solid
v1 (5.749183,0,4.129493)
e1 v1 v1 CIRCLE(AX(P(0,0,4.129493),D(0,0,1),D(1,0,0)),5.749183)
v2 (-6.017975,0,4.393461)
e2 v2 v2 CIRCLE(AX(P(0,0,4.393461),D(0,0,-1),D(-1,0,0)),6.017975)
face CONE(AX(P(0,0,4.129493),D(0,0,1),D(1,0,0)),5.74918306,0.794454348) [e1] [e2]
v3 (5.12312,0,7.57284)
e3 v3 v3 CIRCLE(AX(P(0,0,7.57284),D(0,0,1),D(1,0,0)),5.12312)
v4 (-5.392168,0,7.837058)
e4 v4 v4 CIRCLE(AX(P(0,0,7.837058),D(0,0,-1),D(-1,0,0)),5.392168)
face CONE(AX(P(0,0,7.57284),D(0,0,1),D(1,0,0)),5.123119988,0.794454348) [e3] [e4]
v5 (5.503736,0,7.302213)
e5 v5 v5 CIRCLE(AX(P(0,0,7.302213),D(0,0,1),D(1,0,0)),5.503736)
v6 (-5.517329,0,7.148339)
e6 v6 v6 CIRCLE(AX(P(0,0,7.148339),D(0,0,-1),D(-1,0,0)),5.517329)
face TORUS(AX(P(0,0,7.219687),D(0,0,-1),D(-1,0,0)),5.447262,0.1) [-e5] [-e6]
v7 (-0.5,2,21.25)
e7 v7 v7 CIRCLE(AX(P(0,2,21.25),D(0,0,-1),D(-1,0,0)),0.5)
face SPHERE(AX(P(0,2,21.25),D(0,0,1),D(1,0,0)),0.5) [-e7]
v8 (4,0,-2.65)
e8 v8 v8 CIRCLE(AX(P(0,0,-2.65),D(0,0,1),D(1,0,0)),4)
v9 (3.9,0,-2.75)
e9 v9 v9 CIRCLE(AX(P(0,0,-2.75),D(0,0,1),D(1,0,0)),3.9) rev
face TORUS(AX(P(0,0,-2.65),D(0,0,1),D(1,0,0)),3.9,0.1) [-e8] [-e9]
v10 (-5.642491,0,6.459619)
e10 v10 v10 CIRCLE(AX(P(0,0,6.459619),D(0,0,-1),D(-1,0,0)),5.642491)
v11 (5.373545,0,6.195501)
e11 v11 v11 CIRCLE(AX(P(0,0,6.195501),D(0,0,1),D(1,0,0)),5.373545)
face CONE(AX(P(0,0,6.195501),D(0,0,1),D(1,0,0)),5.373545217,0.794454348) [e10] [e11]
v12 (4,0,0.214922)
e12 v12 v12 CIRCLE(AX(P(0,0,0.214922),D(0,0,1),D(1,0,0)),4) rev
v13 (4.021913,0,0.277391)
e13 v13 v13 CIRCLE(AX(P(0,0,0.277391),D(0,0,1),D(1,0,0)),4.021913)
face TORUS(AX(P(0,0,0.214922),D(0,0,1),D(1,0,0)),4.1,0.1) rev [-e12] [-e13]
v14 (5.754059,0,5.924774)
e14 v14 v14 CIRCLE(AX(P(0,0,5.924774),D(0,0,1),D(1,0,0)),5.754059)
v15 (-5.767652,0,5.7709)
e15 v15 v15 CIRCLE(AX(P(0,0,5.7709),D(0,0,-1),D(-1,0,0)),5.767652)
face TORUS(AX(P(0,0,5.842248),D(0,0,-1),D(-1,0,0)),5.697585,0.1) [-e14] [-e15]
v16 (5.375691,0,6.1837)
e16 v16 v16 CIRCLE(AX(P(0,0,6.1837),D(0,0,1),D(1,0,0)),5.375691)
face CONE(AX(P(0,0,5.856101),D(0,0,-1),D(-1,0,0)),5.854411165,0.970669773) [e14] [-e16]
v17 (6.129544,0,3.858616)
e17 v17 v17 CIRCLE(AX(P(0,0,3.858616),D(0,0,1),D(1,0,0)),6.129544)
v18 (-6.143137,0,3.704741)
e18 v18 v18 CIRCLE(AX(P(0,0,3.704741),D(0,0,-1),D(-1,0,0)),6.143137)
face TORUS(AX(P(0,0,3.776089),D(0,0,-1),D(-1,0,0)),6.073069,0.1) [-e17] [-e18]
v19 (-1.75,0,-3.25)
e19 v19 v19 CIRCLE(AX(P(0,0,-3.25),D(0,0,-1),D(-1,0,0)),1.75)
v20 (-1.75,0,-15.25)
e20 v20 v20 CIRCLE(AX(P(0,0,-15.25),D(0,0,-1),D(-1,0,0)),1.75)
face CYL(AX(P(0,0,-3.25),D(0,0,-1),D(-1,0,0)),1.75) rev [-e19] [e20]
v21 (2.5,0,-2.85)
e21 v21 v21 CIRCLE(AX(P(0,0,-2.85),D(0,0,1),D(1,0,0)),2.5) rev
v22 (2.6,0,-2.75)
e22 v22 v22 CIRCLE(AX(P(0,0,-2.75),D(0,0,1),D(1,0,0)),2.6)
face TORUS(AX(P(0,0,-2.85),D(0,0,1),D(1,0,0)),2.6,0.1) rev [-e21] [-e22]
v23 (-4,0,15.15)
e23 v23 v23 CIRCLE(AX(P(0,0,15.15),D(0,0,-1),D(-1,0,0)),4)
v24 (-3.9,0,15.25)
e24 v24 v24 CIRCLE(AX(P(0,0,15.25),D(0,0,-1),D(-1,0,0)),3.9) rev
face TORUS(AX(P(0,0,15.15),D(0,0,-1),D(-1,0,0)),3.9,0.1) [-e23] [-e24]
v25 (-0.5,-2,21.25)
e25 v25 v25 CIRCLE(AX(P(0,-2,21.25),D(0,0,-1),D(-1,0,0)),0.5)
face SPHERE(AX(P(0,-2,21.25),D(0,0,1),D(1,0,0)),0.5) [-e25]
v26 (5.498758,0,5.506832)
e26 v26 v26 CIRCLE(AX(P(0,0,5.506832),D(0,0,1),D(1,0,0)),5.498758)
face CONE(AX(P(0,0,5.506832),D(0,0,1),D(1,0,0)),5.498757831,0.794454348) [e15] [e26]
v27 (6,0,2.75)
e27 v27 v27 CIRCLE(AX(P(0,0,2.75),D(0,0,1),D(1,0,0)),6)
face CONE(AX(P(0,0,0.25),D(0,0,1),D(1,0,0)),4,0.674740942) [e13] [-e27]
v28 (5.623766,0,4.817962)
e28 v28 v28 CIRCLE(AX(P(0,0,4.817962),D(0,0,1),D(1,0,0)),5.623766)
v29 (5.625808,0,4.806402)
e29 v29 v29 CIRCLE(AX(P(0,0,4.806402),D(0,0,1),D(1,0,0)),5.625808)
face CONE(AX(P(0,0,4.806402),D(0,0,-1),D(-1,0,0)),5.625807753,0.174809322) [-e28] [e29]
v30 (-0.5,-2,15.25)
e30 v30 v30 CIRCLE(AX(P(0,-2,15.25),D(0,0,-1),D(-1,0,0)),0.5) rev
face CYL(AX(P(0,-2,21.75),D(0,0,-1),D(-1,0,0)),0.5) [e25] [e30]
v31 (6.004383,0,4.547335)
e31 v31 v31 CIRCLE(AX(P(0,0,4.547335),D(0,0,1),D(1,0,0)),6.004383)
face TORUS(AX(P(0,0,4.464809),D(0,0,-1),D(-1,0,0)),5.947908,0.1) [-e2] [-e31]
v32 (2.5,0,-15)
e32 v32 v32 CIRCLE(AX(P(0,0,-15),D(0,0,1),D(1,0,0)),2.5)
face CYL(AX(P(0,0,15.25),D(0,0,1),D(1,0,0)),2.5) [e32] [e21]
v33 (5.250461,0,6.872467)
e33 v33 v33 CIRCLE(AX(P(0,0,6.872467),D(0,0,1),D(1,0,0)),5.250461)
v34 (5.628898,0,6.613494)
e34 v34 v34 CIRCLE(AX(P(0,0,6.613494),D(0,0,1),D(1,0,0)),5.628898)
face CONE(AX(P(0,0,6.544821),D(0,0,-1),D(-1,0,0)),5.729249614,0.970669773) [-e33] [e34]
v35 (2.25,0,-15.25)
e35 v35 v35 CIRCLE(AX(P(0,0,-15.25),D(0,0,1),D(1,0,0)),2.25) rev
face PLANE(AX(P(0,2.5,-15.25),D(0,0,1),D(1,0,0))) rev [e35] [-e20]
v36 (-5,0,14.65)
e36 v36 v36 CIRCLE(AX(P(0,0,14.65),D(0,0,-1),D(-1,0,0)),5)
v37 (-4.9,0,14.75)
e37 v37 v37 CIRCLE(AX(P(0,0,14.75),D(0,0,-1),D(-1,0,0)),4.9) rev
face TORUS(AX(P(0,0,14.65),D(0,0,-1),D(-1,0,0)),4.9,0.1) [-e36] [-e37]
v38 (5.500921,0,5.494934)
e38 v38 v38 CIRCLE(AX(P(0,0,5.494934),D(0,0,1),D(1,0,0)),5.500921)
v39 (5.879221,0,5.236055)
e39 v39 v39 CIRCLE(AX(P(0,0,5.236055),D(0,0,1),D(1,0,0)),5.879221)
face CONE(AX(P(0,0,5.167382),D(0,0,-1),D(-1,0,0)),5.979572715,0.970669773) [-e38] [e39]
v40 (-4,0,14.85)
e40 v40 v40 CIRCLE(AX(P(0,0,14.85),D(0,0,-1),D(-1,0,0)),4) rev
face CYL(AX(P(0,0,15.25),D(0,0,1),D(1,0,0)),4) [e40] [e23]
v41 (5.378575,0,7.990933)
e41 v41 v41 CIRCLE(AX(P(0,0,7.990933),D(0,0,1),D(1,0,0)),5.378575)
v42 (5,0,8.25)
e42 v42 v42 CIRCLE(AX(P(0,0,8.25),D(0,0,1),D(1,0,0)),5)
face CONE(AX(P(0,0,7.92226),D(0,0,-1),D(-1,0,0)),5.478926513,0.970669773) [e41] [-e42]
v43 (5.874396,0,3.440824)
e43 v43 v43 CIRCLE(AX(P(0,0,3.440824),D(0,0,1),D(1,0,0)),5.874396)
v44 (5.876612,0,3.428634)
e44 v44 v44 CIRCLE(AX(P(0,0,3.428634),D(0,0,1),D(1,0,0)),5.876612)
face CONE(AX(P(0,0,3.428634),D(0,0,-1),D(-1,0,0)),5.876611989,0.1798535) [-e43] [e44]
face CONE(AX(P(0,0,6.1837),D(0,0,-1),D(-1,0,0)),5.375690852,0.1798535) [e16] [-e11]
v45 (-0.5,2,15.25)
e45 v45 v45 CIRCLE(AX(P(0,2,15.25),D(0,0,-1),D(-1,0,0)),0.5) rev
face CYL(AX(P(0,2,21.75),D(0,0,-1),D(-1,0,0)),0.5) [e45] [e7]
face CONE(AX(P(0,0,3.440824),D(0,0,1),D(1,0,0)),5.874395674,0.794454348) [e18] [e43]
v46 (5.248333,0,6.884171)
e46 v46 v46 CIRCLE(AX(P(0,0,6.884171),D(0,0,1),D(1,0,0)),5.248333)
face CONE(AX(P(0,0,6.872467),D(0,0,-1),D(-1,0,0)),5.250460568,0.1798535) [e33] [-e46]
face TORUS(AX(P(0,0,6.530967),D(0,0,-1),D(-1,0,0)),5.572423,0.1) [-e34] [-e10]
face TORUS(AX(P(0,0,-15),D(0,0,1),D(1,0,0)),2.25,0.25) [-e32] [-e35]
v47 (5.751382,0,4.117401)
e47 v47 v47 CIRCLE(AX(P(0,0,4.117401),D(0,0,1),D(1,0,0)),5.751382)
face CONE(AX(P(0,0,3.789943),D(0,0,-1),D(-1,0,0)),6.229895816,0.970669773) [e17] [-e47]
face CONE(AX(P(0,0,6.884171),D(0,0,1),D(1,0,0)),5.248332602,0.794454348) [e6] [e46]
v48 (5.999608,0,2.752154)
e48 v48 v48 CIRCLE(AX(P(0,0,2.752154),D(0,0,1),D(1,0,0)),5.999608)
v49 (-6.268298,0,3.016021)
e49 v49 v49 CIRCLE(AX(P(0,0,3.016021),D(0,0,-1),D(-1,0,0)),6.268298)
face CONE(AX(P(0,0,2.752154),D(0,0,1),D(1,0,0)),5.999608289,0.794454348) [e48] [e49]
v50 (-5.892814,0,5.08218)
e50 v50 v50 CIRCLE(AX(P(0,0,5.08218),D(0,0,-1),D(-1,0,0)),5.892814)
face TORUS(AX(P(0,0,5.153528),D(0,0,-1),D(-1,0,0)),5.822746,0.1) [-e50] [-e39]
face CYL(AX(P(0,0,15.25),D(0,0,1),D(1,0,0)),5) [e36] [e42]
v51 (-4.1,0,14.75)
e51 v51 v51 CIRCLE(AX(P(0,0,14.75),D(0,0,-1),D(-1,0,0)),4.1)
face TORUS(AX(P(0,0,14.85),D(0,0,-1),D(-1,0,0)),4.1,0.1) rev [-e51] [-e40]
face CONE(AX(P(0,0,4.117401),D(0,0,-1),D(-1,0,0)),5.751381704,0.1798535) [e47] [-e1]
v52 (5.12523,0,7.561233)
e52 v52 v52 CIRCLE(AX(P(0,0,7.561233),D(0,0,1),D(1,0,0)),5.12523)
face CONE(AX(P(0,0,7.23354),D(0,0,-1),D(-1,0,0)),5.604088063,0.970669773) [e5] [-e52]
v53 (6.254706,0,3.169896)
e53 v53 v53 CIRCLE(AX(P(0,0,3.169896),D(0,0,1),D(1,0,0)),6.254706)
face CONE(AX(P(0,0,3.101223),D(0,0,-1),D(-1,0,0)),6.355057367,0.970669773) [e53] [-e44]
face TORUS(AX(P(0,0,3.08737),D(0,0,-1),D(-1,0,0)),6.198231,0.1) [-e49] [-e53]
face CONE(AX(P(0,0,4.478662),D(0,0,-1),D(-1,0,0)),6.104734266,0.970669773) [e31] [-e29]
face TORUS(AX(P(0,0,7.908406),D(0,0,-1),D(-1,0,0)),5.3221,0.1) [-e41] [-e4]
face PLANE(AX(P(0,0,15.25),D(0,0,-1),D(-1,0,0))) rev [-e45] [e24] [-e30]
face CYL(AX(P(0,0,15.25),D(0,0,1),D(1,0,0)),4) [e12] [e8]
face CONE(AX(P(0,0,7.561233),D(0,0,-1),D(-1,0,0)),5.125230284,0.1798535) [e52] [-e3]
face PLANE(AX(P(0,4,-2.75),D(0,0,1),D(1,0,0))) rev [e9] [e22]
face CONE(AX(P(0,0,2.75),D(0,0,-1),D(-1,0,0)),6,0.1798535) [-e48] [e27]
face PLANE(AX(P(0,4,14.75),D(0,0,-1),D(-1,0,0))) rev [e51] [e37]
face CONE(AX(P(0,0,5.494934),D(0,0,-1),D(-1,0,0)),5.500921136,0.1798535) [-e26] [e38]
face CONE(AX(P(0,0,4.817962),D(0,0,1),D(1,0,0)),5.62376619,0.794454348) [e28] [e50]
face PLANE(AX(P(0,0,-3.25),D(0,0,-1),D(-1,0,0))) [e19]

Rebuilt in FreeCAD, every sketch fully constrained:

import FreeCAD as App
import Part
import Sketcher

V = App.Vector


def edges_at(feature, points):
    """Names of the edges that pass closest to the given points."""
    edges = feature.Shape.Edges
    near = lambda p: min(range(len(edges)), key=lambda i: edges[i].distToShape(Part.Vertex(*p))[0])
    return sorted({f"Edge{near(p) + 1}" for p in points})

doc = App.newDocument("Part")
body = doc.addObject("PartDesign::Body", "Body")

sketch1 = doc.addObject("Sketcher::SketchObject", "Sketch")
body.addObject(sketch1)
sketch1.AttachmentSupport = (doc.YZ_Plane, [""])
sketch1.MapMode = "FlatFace"
sketch1.addGeometry([
    Part.LineSegment(V(0, 15.25, 0), V(0, -15.25, 0)),
    Part.LineSegment(V(0, -15.25, 0), V(2.5, -15.25, 0)),
    Part.LineSegment(V(2.5, -15.25, 0), V(2.5, -2.75, 0)),
    Part.LineSegment(V(2.5, -2.75, 0), V(4, -2.75, 0)),
    Part.LineSegment(V(4, -2.75, 0), V(4, 0.25, 0)),
    Part.LineSegment(V(4, 0.25, 0), V(6, 2.75, 0)),
    Part.LineSegment(V(6, 2.75, 0), V(5.9996, 2.7522, 0)),
    Part.LineSegment(V(5.9996, 2.7522, 0), V(6.3551, 3.1012, 0)),
    Part.LineSegment(V(6.3551, 3.1012, 0), V(5.8766, 3.4286, 0)),
    Part.LineSegment(V(5.8766, 3.4286, 0), V(5.8744, 3.4408, 0)),
    Part.LineSegment(V(5.8744, 3.4408, 0), V(6.2299, 3.7899, 0)),
    Part.LineSegment(V(6.2299, 3.7899, 0), V(5.7514, 4.1174, 0)),
    Part.LineSegment(V(5.7514, 4.1174, 0), V(5.7492, 4.1295, 0)),
    Part.LineSegment(V(5.7492, 4.1295, 0), V(6.1047, 4.4787, 0)),
    Part.LineSegment(V(6.1047, 4.4787, 0), V(5.6258, 4.8064, 0)),
    Part.LineSegment(V(5.6258, 4.8064, 0), V(5.6238, 4.818, 0)),
    Part.LineSegment(V(5.6238, 4.818, 0), V(5.9796, 5.1674, 0)),
    Part.LineSegment(V(5.9796, 5.1674, 0), V(5.5009, 5.4949, 0)),
    Part.LineSegment(V(5.5009, 5.4949, 0), V(5.4988, 5.5068, 0)),
    Part.LineSegment(V(5.4988, 5.5068, 0), V(5.8544, 5.8561, 0)),
    Part.LineSegment(V(5.8544, 5.8561, 0), V(5.3757, 6.1837, 0)),
    Part.LineSegment(V(5.3757, 6.1837, 0), V(5.3735, 6.1955, 0)),
    Part.LineSegment(V(5.3735, 6.1955, 0), V(5.7292, 6.5448, 0)),
    Part.LineSegment(V(5.7292, 6.5448, 0), V(5.2505, 6.8725, 0)),
    Part.LineSegment(V(5.2505, 6.8725, 0), V(5.2483, 6.8842, 0)),
    Part.LineSegment(V(5.2483, 6.8842, 0), V(5.6041, 7.2335, 0)),
    Part.LineSegment(V(5.6041, 7.2335, 0), V(5.1252, 7.5612, 0)),
    Part.LineSegment(V(5.1252, 7.5612, 0), V(5.1231, 7.5728, 0)),
    Part.LineSegment(V(5.1231, 7.5728, 0), V(5.4789, 7.9223, 0)),
    Part.LineSegment(V(5.4789, 7.9223, 0), V(5, 8.25, 0)),
    Part.LineSegment(V(5, 8.25, 0), V(5, 14.75, 0)),
    Part.LineSegment(V(5, 14.75, 0), V(4, 14.75, 0)),
    Part.LineSegment(V(4, 14.75, 0), V(4, 15.25, 0)),
    Part.LineSegment(V(4, 15.25, 0), V(0, 15.25, 0)),
], False)
sketch1.addConstraint([
    Sketcher.Constraint("Coincident", 0, 2, 1, 1),
    Sketcher.Constraint("Coincident", 1, 2, 2, 1),
    Sketcher.Constraint("Coincident", 2, 2, 3, 1),
    Sketcher.Constraint("Coincident", 3, 2, 4, 1),
    Sketcher.Constraint("Coincident", 4, 2, 5, 1),
    Sketcher.Constraint("Coincident", 5, 2, 6, 1),
    Sketcher.Constraint("Coincident", 6, 2, 7, 1),
    Sketcher.Constraint("Coincident", 7, 2, 8, 1),
    Sketcher.Constraint("Coincident", 8, 2, 9, 1),
    Sketcher.Constraint("Coincident", 9, 2, 10, 1),
    Sketcher.Constraint("Coincident", 10, 2, 11, 1),
    Sketcher.Constraint("Coincident", 11, 2, 12, 1),
    Sketcher.Constraint("Coincident", 12, 2, 13, 1),
    Sketcher.Constraint("Coincident", 13, 2, 14, 1),
    Sketcher.Constraint("Coincident", 14, 2, 15, 1),
    Sketcher.Constraint("Coincident", 15, 2, 16, 1),
    Sketcher.Constraint("Coincident", 16, 2, 17, 1),
    Sketcher.Constraint("Coincident", 17, 2, 18, 1),
    Sketcher.Constraint("Coincident", 18, 2, 19, 1),
    Sketcher.Constraint("Coincident", 19, 2, 20, 1),
    Sketcher.Constraint("Coincident", 20, 2, 21, 1),
    Sketcher.Constraint("Coincident", 21, 2, 22, 1),
    Sketcher.Constraint("Coincident", 22, 2, 23, 1),
    Sketcher.Constraint("Coincident", 23, 2, 24, 1),
    Sketcher.Constraint("Coincident", 24, 2, 25, 1),
    Sketcher.Constraint("Coincident", 25, 2, 26, 1),
    Sketcher.Constraint("Coincident", 26, 2, 27, 1),
    Sketcher.Constraint("Coincident", 27, 2, 28, 1),
    Sketcher.Constraint("Coincident", 28, 2, 29, 1),
    Sketcher.Constraint("Coincident", 29, 2, 30, 1),
    Sketcher.Constraint("Coincident", 30, 2, 31, 1),
    Sketcher.Constraint("Coincident", 31, 2, 32, 1),
    Sketcher.Constraint("Coincident", 32, 2, 33, 1),
    Sketcher.Constraint("Coincident", 33, 2, 0, 1),
    Sketcher.Constraint("Vertical", 0),
    Sketcher.Constraint("Horizontal", 1),
    Sketcher.Constraint("Vertical", 2),
    Sketcher.Constraint("Horizontal", 3),
    Sketcher.Constraint("Vertical", 4),
    Sketcher.Constraint("Vertical", 30),
    Sketcher.Constraint("Horizontal", 31),
    Sketcher.Constraint("Vertical", 32),
    Sketcher.Constraint("Horizontal", 33),
    Sketcher.Constraint("Symmetric", 0, 2, 33, 2, -1, 1),
    Sketcher.Constraint("Parallel", 6, 9),
    Sketcher.Constraint("Parallel", 7, 10),
    Sketcher.Constraint("Parallel", 8, 11),
    Sketcher.Constraint("Parallel", 9, 12),
    Sketcher.Constraint("Parallel", 10, 13),
    Sketcher.Constraint("Parallel", 11, 14),
    Sketcher.Constraint("Parallel", 13, 16),
    Sketcher.Constraint("Parallel", 14, 17),
    Sketcher.Constraint("Parallel", 12, 18),
    Sketcher.Constraint("Parallel", 16, 19),
    Sketcher.Constraint("Parallel", 17, 20),
    Sketcher.Constraint("Parallel", 18, 21),
    Sketcher.Constraint("Parallel", 19, 22),
    Sketcher.Constraint("Parallel", 20, 23),
    Sketcher.Constraint("Parallel", 21, 24),
    Sketcher.Constraint("Parallel", 22, 25),
    Sketcher.Constraint("Parallel", 23, 26),
    Sketcher.Constraint("Parallel", 24, 27),
    Sketcher.Constraint("Parallel", 25, 28),
    Sketcher.Constraint("Parallel", 26, 29),
    Sketcher.Constraint("Vertical", 4, 2, 31, 2),
    Sketcher.Constraint("Equal", 16, 28),
    Sketcher.Constraint("Equal", 14, 29),
    Sketcher.Constraint("DistanceX", 31, 2, 31, 1, 1.0),
    Sketcher.Constraint("DistanceX", 33, 2, 33, 1, 4.0),
    Sketcher.Constraint("DistanceY", 4, 1, 4, 2, 3.0),
    Sketcher.Constraint("DistanceX", 1, 1, 1, 2, 2.5),
    Sketcher.Constraint("DistanceY", 0, 2, 0, 1, 30.5),
    Sketcher.Constraint("DistanceY", 2, 1, 2, 2, 12.5),
    Sketcher.Constraint("DistanceY", 30, 1, 30, 2, 6.5),
    Sketcher.Constraint("DistanceY", 32, 1, 32, 2, 0.5),
    Sketcher.Constraint("DistanceX", -1, 1, 5, 2, 6.0),
    Sketcher.Constraint("DistanceY", 1, 2, 5, 2, 18.0),
    Sketcher.Constraint("Distance", 17, 0.579998),
    Sketcher.Constraint("DistanceY", 11, 2, 14, 2, 0.689002),
    Sketcher.Constraint("DistanceY", -1, 1, 11, 2, 4.117401),
    Sketcher.Constraint("DistanceY", -1, 1, 19, 2, 5.856101),
    Sketcher.Constraint("DistanceY", -1, 1, 20, 2, 6.1837),
    Sketcher.Constraint("DistanceY", -1, 1, 21, 2, 6.195501),
    Sketcher.Constraint("DistanceY", 7, 2, 9, 2, 0.339601),
    Sketcher.Constraint("DistanceX", 9, 2, 10, 2, 0.3555),
    Sketcher.Constraint("DistanceX", 12, 2, 11, 2, 0.002199),
    Sketcher.Constraint("DistanceY", 13, 2, 15, 2, 0.3393),
    Sketcher.Constraint("DistanceY", 17, 2, 18, 2, 0.011898),
    Sketcher.Constraint("DistanceY", 25, 2, 27, 2, 0.3393),
    Sketcher.Constraint("Distance", 6, 0.00219),
    Sketcher.Constraint("Distance", 7, 0.49819),
    Sketcher.Constraint("Distance", 8, 0.579748),
    Sketcher.Constraint("Distance", 9, 0.01239),
    Sketcher.Constraint("Distance", 10, 0.498261),
    Sketcher.Constraint("Distance", 11, 0.579831),
    Sketcher.Constraint("Distance", 14, 0.580331),
    Sketcher.Constraint("Distance", 15, 0.011738),
    Sketcher.Constraint("Distance", 16, 0.498691),
    Sketcher.Constraint("Distance", 25, 0.498619),
    Sketcher.Constraint("DistanceX", -1, 1, 22, 2, 5.72925),
    Sketcher.Constraint("DistanceX", -1, 1, 23, 2, 5.250461),
])
revolution = doc.addObject("PartDesign::Revolution", "Revolution")
body.addObject(revolution)
revolution.Profile = sketch1
revolution.ReferenceAxis = (sketch1, ["V_Axis"])
revolution.Angle = 360

sketch2 = doc.addObject("Sketcher::SketchObject", "Sketch001")
body.addObject(sketch2)
sketch2.AttachmentSupport = (doc.XY_Plane, [""])
sketch2.MapMode = "FlatFace"
sketch2.AttachmentOffset = App.Placement(V(0, 0, -15.25), App.Rotation())
sketch2.addGeometry(Part.Circle(V(0, 0, 0), V(0, 0, 1), 1.8), False)
sketch2.addConstraint([
    Sketcher.Constraint("Coincident", 0, 3, -1, 1),
    Sketcher.Constraint("Diameter", 0, 3.5),
])
pocket1 = doc.addObject("PartDesign::Pocket", "Pocket")
body.addObject(pocket1)
pocket1.Profile = sketch2
pocket1.Length = 12
pocket1.Reversed = True
doc.recompute()

fillet = doc.addObject("PartDesign::Fillet", "Fillet")
body.addObject(fillet)
fillet.Base = (pocket1, edges_at(pocket1, [
    (0, -6.355, 3.101),
    (0, -6.23, 3.79),
    (0, -6.105, 4.479),
    (0, -5.98, 5.167),
    (0, -5.854, 5.856),
    (0, -5.729, 6.545),
    (0, -5.604, 7.234),
    (0, -5.479, 7.922),
]))
fillet.Radius = 0.1
doc.recompute()

fillet2 = doc.addObject("PartDesign::Fillet", "Fillet001")
body.addObject(fillet2)
fillet2.Base = (fillet, edges_at(fillet, [(0, -2.5, -15.25)]))
fillet2.Radius = 0.25
doc.recompute()

fillet3 = doc.addObject("PartDesign::Fillet", "Fillet002")
body.addObject(fillet3)
fillet3.Base = (fillet2, edges_at(fillet2, [
    (0, -2.5, -2.75),
    (0, -4, -2.75),
    (0, -4, 0.25),
    (0, -5, 14.75),
    (0, -4, 14.75),
    (0, -4, 15.25),
]))
fillet3.Radius = 0.1

sketch3 = doc.addObject("Sketcher::SketchObject", "Sketch002")
body.addObject(sketch3)
sketch3.AttachmentSupport = (doc.XY_Plane, [""])
sketch3.MapMode = "FlatFace"
sketch3.AttachmentOffset = App.Placement(V(0, 0, 15.25), App.Rotation())
sketch3.addGeometry([
    Part.Circle(V(0, 2, 0), V(0, 0, 1), 0.5),
    Part.Circle(V(0, -2, 0), V(0, 0, 1), 0.5),
], False)
sketch3.addConstraint([
    Sketcher.Constraint("Equal", 0, 1),
    Sketcher.Constraint("Symmetric", 0, 3, 1, 3, -1, 1),
    Sketcher.Constraint("PointOnObject", 0, 3, -2),
    Sketcher.Constraint("Diameter", 0, 1.0),
    Sketcher.Constraint("DistanceY", -1, 1, 0, 3, 2.0),
])
pad1 = doc.addObject("PartDesign::Pad", "Pad")
body.addObject(pad1)
pad1.Profile = sketch3
pad1.Length = 6.5
doc.recompute()

fillet4 = doc.addObject("PartDesign::Fillet", "Fillet003")
body.addObject(fillet4)
fillet4.Base = (pad1, edges_at(pad1, [(-0.5, 2, 21.75), (-0.5, -2, 21.75)]))
fillet4.Radius = 0.5

doc.recompute()
